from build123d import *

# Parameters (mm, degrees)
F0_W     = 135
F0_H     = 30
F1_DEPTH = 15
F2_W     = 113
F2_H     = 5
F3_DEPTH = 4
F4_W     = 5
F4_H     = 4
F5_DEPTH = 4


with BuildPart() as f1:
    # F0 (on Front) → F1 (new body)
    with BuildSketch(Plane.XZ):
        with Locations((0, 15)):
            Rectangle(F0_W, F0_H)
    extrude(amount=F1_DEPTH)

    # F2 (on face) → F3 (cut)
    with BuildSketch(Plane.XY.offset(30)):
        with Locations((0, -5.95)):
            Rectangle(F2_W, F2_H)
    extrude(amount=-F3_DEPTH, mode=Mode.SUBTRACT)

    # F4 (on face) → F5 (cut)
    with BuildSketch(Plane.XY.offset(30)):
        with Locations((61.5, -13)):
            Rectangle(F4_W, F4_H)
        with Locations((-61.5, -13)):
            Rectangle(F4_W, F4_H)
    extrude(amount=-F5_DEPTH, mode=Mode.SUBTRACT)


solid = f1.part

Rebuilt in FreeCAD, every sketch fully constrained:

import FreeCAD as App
import Part
import Sketcher
from FreeCAD import Vector

doc = App.newDocument("Part")
body = doc.addObject("PartDesign::Body", "Body")

# Sketch on XZ plane
sketch1 = body.newObject("Sketcher::SketchObject", "Sketch")
sketch1.AttachmentSupport = (doc.getObject("XZ_Plane"), [""])
sketch1.MapMode = "FlatFace"
sketch1.addGeometry([
    Part.LineSegment(Vector(-68, 30, 0), Vector(-68, 0, 0)),
    Part.LineSegment(Vector(-68, 0, 0), Vector(68, 0, 0)),
    Part.LineSegment(Vector(68, 0, 0), Vector(68, 30, 0)),
    Part.LineSegment(Vector(68, 30, 0), Vector(-68, 30, 0)),
], False)
sketch1.addConstraint([
    Sketcher.Constraint("Coincident", 0, 2, 1, 1),
    Sketcher.Constraint("Coincident", 1, 2, 2, 1),
    Sketcher.Constraint("Coincident", 2, 2, 3, 1),
    Sketcher.Constraint("Coincident", 3, 2, 0, 1),
    Sketcher.Constraint("Vertical", 0),
    Sketcher.Constraint("Horizontal", 1),
    Sketcher.Constraint("Vertical", 2),
    Sketcher.Constraint("Horizontal", 3),
    Sketcher.Constraint("Symmetric", 0, 2, 1, 2, -1, 1),
    Sketcher.Constraint("DistanceX", 1, 1, 1, 2, 135.0),
    Sketcher.Constraint("DistanceY", 0, 2, 0, 1, 30.0),
])
pad1 = body.newObject("PartDesign::Pad", "Pad")
pad1.Profile = sketch1
pad1.Length = 15

# Sketch on XY plane
sketch2 = body.newObject("Sketcher::SketchObject", "Sketch001")
sketch2.AttachmentSupport = (doc.getObject("XY_Plane"), [""])
sketch2.MapMode = "FlatFace"
sketch2.AttachmentOffset = App.Placement(Vector(0, 0, 30), App.Rotation())
sketch2.addGeometry([
    Part.LineSegment(Vector(-56.5, -3.5, 0), Vector(-56.5, -8.4, 0)),
    Part.LineSegment(Vector(-56.5, -8.4, 0), Vector(56.5, -8.4, 0)),
    Part.LineSegment(Vector(56.5, -8.4, 0), Vector(56.5, -3.5, 0)),
    Part.LineSegment(Vector(56.5, -3.5, 0), Vector(-56.5, -3.5, 0)),
], False)
sketch2.addConstraint([
    Sketcher.Constraint("Coincident", 0, 2, 1, 1),
    Sketcher.Constraint("Coincident", 1, 2, 2, 1),
    Sketcher.Constraint("Coincident", 2, 2, 3, 1),
    Sketcher.Constraint("Coincident", 3, 2, 0, 1),
    Sketcher.Constraint("Vertical", 0),
    Sketcher.Constraint("Horizontal", 1),
    Sketcher.Constraint("Vertical", 2),
    Sketcher.Constraint("Horizontal", 3),
    Sketcher.Constraint("DistanceX", 1, 1, 1, 2, 113.0),
    Sketcher.Constraint("DistanceY", 0, 2, 0, 1, 5.0),
    Sketcher.Constraint("DistanceX", 0, 2, -1, 1, 56.5),
    Sketcher.Constraint("DistanceY", 0, 2, -1, 1, 8.45),
])
pocket1 = body.newObject("PartDesign::Pocket", "Pocket")
pocket1.Profile = sketch2
pocket1.Length = 4

# Sketch on XY plane
sketch3 = body.newObject("Sketcher::SketchObject", "Sketch002")
sketch3.AttachmentSupport = (doc.getObject("XY_Plane"), [""])
sketch3.MapMode = "FlatFace"
sketch3.AttachmentOffset = App.Placement(Vector(0, 0, 30), App.Rotation())
sketch3.addGeometry([
    Part.LineSegment(Vector(59, -11, 0), Vector(59, -15, 0)),  # 0
    Part.LineSegment(Vector(59, -15, 0), Vector(64, -15, 0)),  # 1
    Part.LineSegment(Vector(64, -15, 0), Vector(64, -11, 0)),  # 2
    Part.LineSegment(Vector(64, -11, 0), Vector(59, -11, 0)),  # 3
    Part.LineSegment(Vector(-64, -11, 0), Vector(-64, -15, 0)),  # 4
    Part.LineSegment(Vector(-64, -15, 0), Vector(-59, -15, 0)),  # 5
    Part.LineSegment(Vector(-59, -15, 0), Vector(-59, -11, 0)),  # 6
    Part.LineSegment(Vector(-59, -11, 0), Vector(-64, -11, 0)),  # 7
], False)
sketch3.addConstraint([
    Sketcher.Constraint("Coincident", 0, 2, 1, 1),
    Sketcher.Constraint("Coincident", 1, 2, 2, 1),
    Sketcher.Constraint("Coincident", 2, 2, 3, 1),
    Sketcher.Constraint("Coincident", 3, 2, 0, 1),
    Sketcher.Constraint("Coincident", 4, 2, 5, 1),
    Sketcher.Constraint("Coincident", 5, 2, 6, 1),
    Sketcher.Constraint("Coincident", 6, 2, 7, 1),
    Sketcher.Constraint("Coincident", 7, 2, 4, 1),
    Sketcher.Constraint("Vertical", 0),
    Sketcher.Constraint("Horizontal", 1),
    Sketcher.Constraint("Vertical", 2),
    Sketcher.Constraint("Horizontal", 3),
    Sketcher.Constraint("Vertical", 4),
    Sketcher.Constraint("Horizontal", 5),
    Sketcher.Constraint("Vertical", 6),
    Sketcher.Constraint("Horizontal", 7),
    Sketcher.Constraint("Symmetric", 1, 2, 4, 2, -2),
    Sketcher.Constraint("Symmetric", 3, 2, 6, 2, -2),
    Sketcher.Constraint("DistanceX", 1, 1, 1, 2, 5.0),
    Sketcher.Constraint("DistanceY", 0, 2, 0, 1, 4.0),
    Sketcher.Constraint("DistanceX", -1, 1, 0, 2, 59.0),
    Sketcher.Constraint("DistanceY", 0, 2, -1, 1, 15.0),
])
pocket2 = body.newObject("PartDesign::Pocket", "Pocket001")
pocket2.Profile = sketch3
pocket2.Length = 4

doc.recompute()
